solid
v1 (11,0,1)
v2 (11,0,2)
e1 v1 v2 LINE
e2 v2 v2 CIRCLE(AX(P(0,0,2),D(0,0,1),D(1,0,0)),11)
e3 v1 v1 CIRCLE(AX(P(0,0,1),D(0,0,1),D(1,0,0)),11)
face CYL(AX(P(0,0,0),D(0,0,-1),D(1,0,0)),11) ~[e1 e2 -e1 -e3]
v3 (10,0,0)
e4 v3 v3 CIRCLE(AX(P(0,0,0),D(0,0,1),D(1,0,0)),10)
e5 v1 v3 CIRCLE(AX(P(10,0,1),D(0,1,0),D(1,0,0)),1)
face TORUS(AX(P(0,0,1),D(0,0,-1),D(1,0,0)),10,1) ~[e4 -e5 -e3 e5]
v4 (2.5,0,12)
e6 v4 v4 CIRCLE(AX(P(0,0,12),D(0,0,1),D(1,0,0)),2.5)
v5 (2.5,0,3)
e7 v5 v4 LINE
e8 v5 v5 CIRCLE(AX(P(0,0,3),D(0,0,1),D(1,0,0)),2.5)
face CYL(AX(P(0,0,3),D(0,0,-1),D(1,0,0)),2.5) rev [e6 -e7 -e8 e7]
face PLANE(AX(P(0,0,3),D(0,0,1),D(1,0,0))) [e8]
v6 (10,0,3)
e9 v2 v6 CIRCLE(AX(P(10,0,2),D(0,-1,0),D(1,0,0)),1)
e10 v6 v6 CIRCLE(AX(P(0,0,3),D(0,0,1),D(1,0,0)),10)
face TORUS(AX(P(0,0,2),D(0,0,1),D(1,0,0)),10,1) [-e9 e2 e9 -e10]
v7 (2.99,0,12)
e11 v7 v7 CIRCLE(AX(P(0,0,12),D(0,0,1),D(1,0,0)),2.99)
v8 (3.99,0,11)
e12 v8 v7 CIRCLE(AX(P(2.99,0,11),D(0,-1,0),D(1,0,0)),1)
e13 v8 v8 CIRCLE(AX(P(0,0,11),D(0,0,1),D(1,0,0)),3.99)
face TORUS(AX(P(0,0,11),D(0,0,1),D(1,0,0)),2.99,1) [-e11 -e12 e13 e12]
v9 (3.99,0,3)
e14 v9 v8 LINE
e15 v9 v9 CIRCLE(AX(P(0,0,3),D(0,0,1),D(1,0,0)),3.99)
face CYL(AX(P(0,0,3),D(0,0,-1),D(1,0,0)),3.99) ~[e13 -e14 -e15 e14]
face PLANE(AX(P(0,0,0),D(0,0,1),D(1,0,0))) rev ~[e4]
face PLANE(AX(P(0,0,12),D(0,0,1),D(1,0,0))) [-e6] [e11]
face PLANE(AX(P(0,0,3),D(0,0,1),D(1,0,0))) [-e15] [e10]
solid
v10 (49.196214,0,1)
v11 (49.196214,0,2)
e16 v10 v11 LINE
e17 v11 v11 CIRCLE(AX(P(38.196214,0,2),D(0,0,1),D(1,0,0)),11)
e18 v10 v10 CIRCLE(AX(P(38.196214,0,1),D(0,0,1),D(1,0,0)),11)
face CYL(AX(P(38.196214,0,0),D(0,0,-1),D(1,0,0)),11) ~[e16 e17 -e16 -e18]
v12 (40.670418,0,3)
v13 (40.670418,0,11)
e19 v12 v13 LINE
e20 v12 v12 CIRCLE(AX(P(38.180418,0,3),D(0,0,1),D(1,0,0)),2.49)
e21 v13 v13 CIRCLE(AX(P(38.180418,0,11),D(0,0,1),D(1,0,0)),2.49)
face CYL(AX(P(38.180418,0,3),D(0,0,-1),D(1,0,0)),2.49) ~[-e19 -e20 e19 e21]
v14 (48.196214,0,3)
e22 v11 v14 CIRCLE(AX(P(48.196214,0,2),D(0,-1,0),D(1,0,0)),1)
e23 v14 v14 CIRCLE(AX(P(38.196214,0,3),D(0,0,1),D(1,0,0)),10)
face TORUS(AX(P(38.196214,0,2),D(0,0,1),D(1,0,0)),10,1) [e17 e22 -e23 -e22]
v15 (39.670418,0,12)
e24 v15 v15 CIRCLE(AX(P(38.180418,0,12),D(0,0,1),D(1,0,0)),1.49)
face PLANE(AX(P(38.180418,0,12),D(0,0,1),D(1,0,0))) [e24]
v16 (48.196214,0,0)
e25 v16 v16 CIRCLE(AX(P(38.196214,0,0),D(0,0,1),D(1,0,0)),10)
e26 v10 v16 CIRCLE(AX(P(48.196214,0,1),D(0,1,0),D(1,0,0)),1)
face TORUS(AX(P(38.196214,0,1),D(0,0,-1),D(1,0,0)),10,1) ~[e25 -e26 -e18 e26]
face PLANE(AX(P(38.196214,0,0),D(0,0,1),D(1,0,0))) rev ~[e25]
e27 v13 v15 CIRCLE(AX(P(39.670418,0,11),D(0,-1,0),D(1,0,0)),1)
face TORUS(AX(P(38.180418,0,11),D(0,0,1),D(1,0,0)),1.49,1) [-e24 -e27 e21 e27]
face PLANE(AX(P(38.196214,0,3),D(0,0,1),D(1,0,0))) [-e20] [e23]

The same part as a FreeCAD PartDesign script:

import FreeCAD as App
import Part
import Sketcher

V = App.Vector
Q = App.Units.Quantity


def edges_at(feature, points):
    """Names of the edges that pass closest to the given points."""
    edges = feature.Shape.Edges
    near = lambda p: min(range(len(edges)), key=lambda i: edges[i].distToShape(Part.Vertex(*p))[0])
    return sorted({f"Edge{near(p) + 1}" for p in points})

doc = App.newDocument("Part")
body = doc.addObject("PartDesign::Body", "Body")

# Sketch on XY plane
sketch1 = doc.addObject("Sketcher::SketchObject", "Sketch")
body.addObject(sketch1)
sketch1.AttachmentSupport = (doc.XY_Plane, [""])
sketch1.MapMode = "FlatFace"
sketch1.addGeometry(Part.Circle(V(38, 0, 0), V(0, 0, 1), 11), False)
sketch1.addConstraint([
    Sketcher.Constraint("PointOnObject", 0, 3, -1),
    Sketcher.Constraint("Diameter", 0, Q("22 mm")),
    Sketcher.Constraint("DistanceX", -1, 1, 0, 3, Q("38.196214 mm")),
])
pad1 = doc.addObject("PartDesign::Pad", "Pad")
body.addObject(pad1)
pad1.Profile = sketch1
pad1.Length = 3

# Sketch on XY plane
sketch2 = doc.addObject("Sketcher::SketchObject", "Sketch001")
body.addObject(sketch2)
sketch2.AttachmentSupport = (doc.XY_Plane, [""])
sketch2.MapMode = "FlatFace"
sketch2.AttachmentOffset = App.Placement(V(0, 0, 3), App.Rotation())
sketch2.addGeometry(Part.Circle(V(38.2, 0, 0), V(0, 0, 1), 2.5), False)
sketch2.addConstraint([
    Sketcher.Constraint("PointOnObject", 0, 3, -1),
    Sketcher.Constraint("Diameter", 0, Q("4.98 mm")),
    Sketcher.Constraint("DistanceX", -1, 1, 0, 3, Q("38.180418 mm")),
])
pad2 = doc.addObject("PartDesign::Pad", "Pad001")
body.addObject(pad2)
pad2.Profile = sketch2
pad2.Length = 9
doc.recompute()

fillet = doc.addObject("PartDesign::Fillet", "Fillet")
body.addObject(fillet)
fillet.Base = (pad2, edges_at(pad2, [
    (27.196, 0, 3),
    (49.196, 0, 1.5),
    (27.196, 0, 0),
    (35.69, 0, 12),
]))
fillet.Radius = 1
body2 = doc.addObject("PartDesign::Body", "Body001")

# Sketch on XY plane
sketch3 = doc.addObject("Sketcher::SketchObject", "Sketch002")
body2.addObject(sketch3)
sketch3.AttachmentSupport = (doc.getObject("XY_Plane001"), [""])
sketch3.MapMode = "FlatFace"
sketch3.addGeometry(Part.Circle(V(0, 0, 0), V(0, 0, 1), 11), False)
sketch3.addConstraint([
    Sketcher.Constraint("Coincident", 0, 3, -1, 1),
    Sketcher.Constraint("Diameter", 0, Q("22 mm")),
])
pad3 = doc.addObject("PartDesign::Pad", "Pad002")
body2.addObject(pad3)
pad3.Profile = sketch3
pad3.Length = 3

# Sketch on XY plane
sketch4 = doc.addObject("Sketcher::SketchObject", "Sketch003")
body2.addObject(sketch4)
sketch4.AttachmentSupport = (doc.getObject("XY_Plane001"), [""])
sketch4.MapMode = "FlatFace"
sketch4.AttachmentOffset = App.Placement(V(0, 0, 3), App.Rotation())
sketch4.addGeometry([
    Part.Circle(V(0, 0, 0), V(0, 0, 1), 4),
    Part.Circle(V(0, 0, 0), V(0, 0, 1), 2.5),
], False)
sketch4.addConstraint([
    Sketcher.Constraint("Coincident", 0, 3, -1, 1),
    Sketcher.Constraint("Coincident", 1, 3, -1, 1),
    Sketcher.Constraint("Diameter", 1, Q("5 mm")),
    Sketcher.Constraint("Diameter", 0, Q("7.98 mm")),
])
pad4 = doc.addObject("PartDesign::Pad", "Pad003")
body2.addObject(pad4)
pad4.Profile = sketch4
pad4.Length = 9
doc.recompute()

fillet2 = doc.addObject("PartDesign::Fillet", "Fillet001")
body2.addObject(fillet2)
fillet2.Base = (pad4, edges_at(pad4, [(-11, 0, 0), (-11, 0, 3), (-3.99, 0, 12)]))
fillet2.Radius = 1

doc.recompute()
